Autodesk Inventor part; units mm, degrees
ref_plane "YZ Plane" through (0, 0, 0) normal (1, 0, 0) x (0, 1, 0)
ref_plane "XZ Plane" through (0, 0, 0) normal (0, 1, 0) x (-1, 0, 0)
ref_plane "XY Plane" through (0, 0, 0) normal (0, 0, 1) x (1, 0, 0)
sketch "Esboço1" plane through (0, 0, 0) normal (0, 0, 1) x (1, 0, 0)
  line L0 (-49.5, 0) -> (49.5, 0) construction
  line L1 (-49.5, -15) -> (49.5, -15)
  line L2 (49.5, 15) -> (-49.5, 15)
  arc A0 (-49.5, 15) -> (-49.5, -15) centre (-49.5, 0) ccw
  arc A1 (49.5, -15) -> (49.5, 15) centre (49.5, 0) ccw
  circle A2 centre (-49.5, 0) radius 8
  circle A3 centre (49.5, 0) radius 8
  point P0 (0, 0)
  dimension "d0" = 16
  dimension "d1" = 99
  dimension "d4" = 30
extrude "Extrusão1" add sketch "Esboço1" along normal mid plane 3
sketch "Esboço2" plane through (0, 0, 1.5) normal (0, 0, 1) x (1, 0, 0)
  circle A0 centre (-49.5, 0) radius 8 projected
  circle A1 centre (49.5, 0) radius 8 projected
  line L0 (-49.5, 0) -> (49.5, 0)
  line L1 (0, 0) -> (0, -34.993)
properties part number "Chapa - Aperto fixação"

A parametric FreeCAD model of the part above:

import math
import FreeCAD as App
import Part
import Sketcher

doc = App.newDocument("Part")
params = doc.addObject("Spreadsheet::Sheet", "Params")
for row, (alias, value) in enumerate([
    ("sketch1_diameter", "16 mm"),
    ("sketch1_radius", "15 mm"),
    ("sketch1_width", "99 mm"),
    ("pad1_length", "3 mm"),
], start=1):
    params.set(f"A{row}", alias)
    params.set(f"B{row}", "=" + value)
    params.setAlias(f"B{row}", alias)

body = doc.addObject("PartDesign::Body", "Body")

sketch1 = body.newObject("Sketcher::SketchObject", "Sketch")
sketch1.AttachmentSupport = (doc.getObject("XY_Plane"), [""])
sketch1.MapMode = "FlatFace"
sketch1.addGeometry([
    Part.ArcOfCircle(Part.Circle(App.Vector(-50, 0, 0), App.Vector(0, 0, 1), 15), math.radians(90), math.radians(270)),
    Part.LineSegment(App.Vector(-50, -15, 0), App.Vector(50, -15, 0)),
    Part.ArcOfCircle(Part.Circle(App.Vector(50, 0, 0), App.Vector(0, 0, 1), 15), math.radians(-90), math.radians(90)),
    Part.LineSegment(App.Vector(50, 15, 0), App.Vector(-50, 15, 0)),
    Part.Circle(App.Vector(-50, 0, 0), App.Vector(0, 0, 1), 8),
    Part.Circle(App.Vector(50, 0, 0), App.Vector(0, 0, 1), 8),
], False)
sketch1.addConstraint([
    Sketcher.Constraint("Tangent", 0, 2, 1, 1),
    Sketcher.Constraint("Tangent", 1, 2, 2, 1),
    Sketcher.Constraint("Tangent", 2, 2, 3, 1),
    Sketcher.Constraint("Tangent", 3, 2, 0, 1),
    Sketcher.Constraint("Horizontal", 1),
    Sketcher.Constraint("Horizontal", 3),
    Sketcher.Constraint("Coincident", 4, 3, 0, 3),
    Sketcher.Constraint("Coincident", 5, 3, 2, 3),
    Sketcher.Constraint("Equal", 4, 5),
    Sketcher.Constraint("Symmetric", 0, 3, 2, 3, -1, 1),
    Sketcher.Constraint("Diameter", 4, 16.0),
    Sketcher.Constraint("Radius", 0, 15.0),
    Sketcher.Constraint("DistanceX", 1, 1, 1, 2, 99.0),
])
sketch1.setExpression("Constraints[10]", "Params.sketch1_diameter")
sketch1.setExpression("Constraints[11]", "Params.sketch1_radius")
sketch1.setExpression("Constraints[12]", "Params.sketch1_width")
pad1 = body.newObject("PartDesign::Pad", "Pad")
pad1.Profile = sketch1
pad1.setExpression("Length", "Params.pad1_length")
pad1.Midplane = True

doc.recompute()
